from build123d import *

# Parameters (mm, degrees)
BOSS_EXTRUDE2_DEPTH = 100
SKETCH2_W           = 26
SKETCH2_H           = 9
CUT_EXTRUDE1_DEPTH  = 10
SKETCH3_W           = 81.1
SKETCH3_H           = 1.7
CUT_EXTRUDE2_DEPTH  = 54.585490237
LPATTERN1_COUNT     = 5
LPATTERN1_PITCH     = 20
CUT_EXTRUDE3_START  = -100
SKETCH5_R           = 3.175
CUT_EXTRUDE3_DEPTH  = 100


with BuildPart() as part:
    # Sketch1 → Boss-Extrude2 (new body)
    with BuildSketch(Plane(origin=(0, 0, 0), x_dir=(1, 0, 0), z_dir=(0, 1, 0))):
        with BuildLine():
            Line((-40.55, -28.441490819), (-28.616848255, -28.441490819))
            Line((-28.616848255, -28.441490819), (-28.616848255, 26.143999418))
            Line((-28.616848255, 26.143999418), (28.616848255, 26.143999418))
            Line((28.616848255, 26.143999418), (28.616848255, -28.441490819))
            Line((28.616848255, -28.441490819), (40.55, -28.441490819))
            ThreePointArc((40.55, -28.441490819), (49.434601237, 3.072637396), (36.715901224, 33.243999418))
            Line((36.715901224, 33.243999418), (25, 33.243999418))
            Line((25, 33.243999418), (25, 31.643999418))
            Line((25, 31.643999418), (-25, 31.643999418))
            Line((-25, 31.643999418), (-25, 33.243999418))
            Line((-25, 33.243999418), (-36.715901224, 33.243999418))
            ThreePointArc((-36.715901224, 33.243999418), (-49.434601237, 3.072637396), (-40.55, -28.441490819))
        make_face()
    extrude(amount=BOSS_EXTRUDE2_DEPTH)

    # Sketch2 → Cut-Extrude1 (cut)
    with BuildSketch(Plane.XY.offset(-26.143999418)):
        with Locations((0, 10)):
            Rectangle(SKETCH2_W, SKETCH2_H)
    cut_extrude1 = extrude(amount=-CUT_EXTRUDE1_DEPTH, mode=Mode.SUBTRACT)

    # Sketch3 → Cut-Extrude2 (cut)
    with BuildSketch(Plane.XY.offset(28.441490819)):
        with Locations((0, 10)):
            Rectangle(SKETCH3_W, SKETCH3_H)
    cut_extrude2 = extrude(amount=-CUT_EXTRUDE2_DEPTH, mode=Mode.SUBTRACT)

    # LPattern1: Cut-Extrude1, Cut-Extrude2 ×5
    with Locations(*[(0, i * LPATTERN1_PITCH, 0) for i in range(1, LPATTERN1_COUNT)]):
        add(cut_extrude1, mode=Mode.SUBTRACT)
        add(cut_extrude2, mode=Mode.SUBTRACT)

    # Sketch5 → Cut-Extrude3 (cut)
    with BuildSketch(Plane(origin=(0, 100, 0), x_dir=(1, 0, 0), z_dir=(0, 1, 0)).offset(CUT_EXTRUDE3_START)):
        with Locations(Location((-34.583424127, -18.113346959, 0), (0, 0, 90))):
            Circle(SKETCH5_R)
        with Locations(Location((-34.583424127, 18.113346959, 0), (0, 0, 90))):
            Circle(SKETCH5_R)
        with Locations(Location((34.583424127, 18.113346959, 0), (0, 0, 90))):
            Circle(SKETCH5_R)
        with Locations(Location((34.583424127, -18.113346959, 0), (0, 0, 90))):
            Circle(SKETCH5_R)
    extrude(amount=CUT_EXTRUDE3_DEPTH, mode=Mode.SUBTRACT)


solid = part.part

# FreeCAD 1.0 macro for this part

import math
import FreeCAD as App
import Part
import Sketcher
Q = App.Units.Quantity

doc = App.newDocument("Part")
params = doc.addObject("Spreadsheet::Sheet", "Params")
for row, (alias, value) in enumerate([
    ("sketch1_width", "50 mm"),
    ("sketch1_radius", "49.53 mm"),
    ("sketch1_height", "1.6 mm"),
    ("pad1_length", "100 mm"),
    ("sketch2_width", "26 mm"),
    ("sketch2_height", "9 mm"),
    ("pocket1_length", "10 mm"),
    ("sketch3_width", "81.1 mm"),
    ("sketch3_height", "1.7 mm"),
    ("pocket2_length", "54.58549 mm"),
    ("linearpattern_pitch", "20 mm"),
    ("sketch4_diameter", "6.35 mm"),
    ("pocket3_length", "100 mm"),
], start=1):
    params.set(f"A{row}", alias)
    params.set(f"B{row}", "=" + value)
    params.setAlias(f"B{row}", alias)

body = doc.addObject("PartDesign::Body", "Body")

# Sketch on XZ plane
sketch1 = doc.addObject("Sketcher::SketchObject", "Sketch")
body.addObject(sketch1)
sketch1.AttachmentSupport = (doc.XZ_Plane, [""])
sketch1.MapMode = "FlatFace"
sketch1.addGeometry([
    Part.LineSegment(App.Vector(-40.55, 28.441491, 0), App.Vector(-28.616848, 28.441491, 0)),  # 0
    Part.LineSegment(App.Vector(-28.616848, 28.441491, 0), App.Vector(-28.616848, -26.143999, 0)),  # 1
    Part.LineSegment(App.Vector(-28.616848, -26.143999, 0), App.Vector(28.616848, -26.143999, 0)),  # 2
    Part.LineSegment(App.Vector(28.616848, -26.143999, 0), App.Vector(28.616848, 28.441491, 0)),  # 3
    Part.LineSegment(App.Vector(28.616848, 28.441491, 0), App.Vector(40.55, 28.441491, 0)),  # 4
    Part.ArcOfCircle(Part.Circle(App.Vector(0, 0, 0), App.Vector(0, 0, 1), 49.53), math.radians(-42.158912), math.radians(35.045555)),  # 5
    Part.LineSegment(App.Vector(36.715901, -33.243999, 0), App.Vector(25, -33.243999, 0)),  # 6
    Part.LineSegment(App.Vector(25, -33.243999, 0), App.Vector(25, -31.643999, 0)),  # 7
    Part.LineSegment(App.Vector(25, -31.643999, 0), App.Vector(-25, -31.643999, 0)),  # 8
    Part.LineSegment(App.Vector(-25, -31.643999, 0), App.Vector(-25, -33.243999, 0)),  # 9
    Part.LineSegment(App.Vector(-25, -33.243999, 0), App.Vector(-36.715901, -33.243999, 0)),  # 10
    Part.ArcOfCircle(Part.Circle(App.Vector(0, 0, 0), App.Vector(0, 0, 1), 49.53), math.radians(144.954445), math.radians(222.158912)),  # 11
], False)
sketch1.addConstraint([
    Sketcher.Constraint("Coincident", 0, 2, 1, 1),
    Sketcher.Constraint("Coincident", 1, 2, 2, 1),
    Sketcher.Constraint("Coincident", 2, 2, 3, 1),
    Sketcher.Constraint("Coincident", 3, 2, 4, 1),
    Sketcher.Constraint("Coincident", 4, 2, 5, 2),
    Sketcher.Constraint("Coincident", 5, 1, 6, 1),
    Sketcher.Constraint("Coincident", 6, 2, 7, 1),
    Sketcher.Constraint("Coincident", 7, 2, 8, 1),
    Sketcher.Constraint("Coincident", 8, 2, 9, 1),
    Sketcher.Constraint("Coincident", 9, 2, 10, 1),
    Sketcher.Constraint("Coincident", 10, 2, 11, 2),
    Sketcher.Constraint("Coincident", 11, 1, 0, 1),
    Sketcher.Constraint("Horizontal", 0),
    Sketcher.Constraint("Vertical", 1),
    Sketcher.Constraint("Horizontal", 2),
    Sketcher.Constraint("Vertical", 3),
    Sketcher.Constraint("Horizontal", 4),
    Sketcher.Constraint("Horizontal", 6),
    Sketcher.Constraint("Vertical", 7),
    Sketcher.Constraint("Horizontal", 8),
    Sketcher.Constraint("Vertical", 9),
    Sketcher.Constraint("Horizontal", 10),
    Sketcher.Constraint("Coincident", 5, 3, -1, 1),
    Sketcher.Constraint("Coincident", 11, 3, -1, 1),
    Sketcher.Constraint("Equal", 5, 11),
    Sketcher.Constraint("Symmetric", 0, 2, 3, 2, -2),
    Sketcher.Constraint("Symmetric", 6, 2, 9, 2, -2),
    Sketcher.Constraint("DistanceX", 8, 2, 8, 1, Q("50 mm")),
    Sketcher.Constraint("Radius", 5, Q("49.53 mm")),
    Sketcher.Constraint("DistanceY", 7, 1, 7, 2, Q("1.6 mm")),
    Sketcher.Constraint("DistanceY", 5, 1, 2, 2, Q("7.1 mm")),
    Sketcher.Constraint("DistanceX", -1, 1, 4, 2, Q("40.55 mm")),
    Sketcher.Constraint("DistanceX", 6, 2, 6, 1, Q("11.715901 mm")),
    Sketcher.Constraint("DistanceX", 0, 1, 0, 2, Q("11.933152 mm")),
])
sketch1.setExpression("Constraints[27]", "Params.sketch1_width")
sketch1.setExpression("Constraints[28]", "Params.sketch1_radius")
sketch1.setExpression("Constraints[29]", "Params.sketch1_height")
pad1 = doc.addObject("PartDesign::Pad", "Pad")
body.addObject(pad1)
pad1.Profile = sketch1
pad1.setExpression("Length", "Params.pad1_length")
pad1.Reversed = True

# Sketch on XY plane
sketch2 = doc.addObject("Sketcher::SketchObject", "Sketch001")
body.addObject(sketch2)
sketch2.AttachmentSupport = (doc.XY_Plane, [""])
sketch2.MapMode = "FlatFace"
sketch2.AttachmentOffset = App.Placement(App.Vector(0, 0, -26.143999), App.Rotation())
sketch2.addGeometry([
    Part.LineSegment(App.Vector(-13, 14.5, 0), App.Vector(-13, 5.5, 0)),
    Part.LineSegment(App.Vector(-13, 5.5, 0), App.Vector(13, 5.5, 0)),
    Part.LineSegment(App.Vector(13, 5.5, 0), App.Vector(13, 14.5, 0)),
    Part.LineSegment(App.Vector(13, 14.5, 0), App.Vector(-13, 14.5, 0)),
], False)
sketch2.addConstraint([
    Sketcher.Constraint("Coincident", 0, 2, 1, 1),
    Sketcher.Constraint("Coincident", 1, 2, 2, 1),
    Sketcher.Constraint("Coincident", 2, 2, 3, 1),
    Sketcher.Constraint("Coincident", 3, 2, 0, 1),
    Sketcher.Constraint("Vertical", 0),
    Sketcher.Constraint("Horizontal", 1),
    Sketcher.Constraint("Vertical", 2),
    Sketcher.Constraint("Horizontal", 3),
    Sketcher.Constraint("DistanceX", 1, 1, 1, 2, Q("26 mm")),
    Sketcher.Constraint("DistanceY", 0, 2, 0, 1, Q("9 mm")),
    Sketcher.Constraint("DistanceX", 0, 2, -1, 1, Q("13 mm")),
    Sketcher.Constraint("DistanceY", -1, 1, 0, 2, Q("5.5 mm")),
])
sketch2.setExpression("Constraints[8]", "Params.sketch2_width")
sketch2.setExpression("Constraints[9]", "Params.sketch2_height")
pocket1 = doc.addObject("PartDesign::Pocket", "Pocket")
body.addObject(pocket1)
pocket1.Profile = sketch2
pocket1.setExpression("Length", "Params.pocket1_length")

# Sketch on XY plane
sketch3 = doc.addObject("Sketcher::SketchObject", "Sketch002")
body.addObject(sketch3)
sketch3.AttachmentSupport = (doc.XY_Plane, [""])
sketch3.MapMode = "FlatFace"
sketch3.AttachmentOffset = App.Placement(App.Vector(0, 0, 28.441491), App.Rotation())
sketch3.addGeometry([
    Part.LineSegment(App.Vector(-40.55, 10.85, 0), App.Vector(-40.55, 9.15, 0)),
    Part.LineSegment(App.Vector(-40.55, 9.15, 0), App.Vector(40.55, 9.15, 0)),
    Part.LineSegment(App.Vector(40.55, 9.15, 0), App.Vector(40.55, 10.85, 0)),
    Part.LineSegment(App.Vector(40.55, 10.85, 0), App.Vector(-40.55, 10.85, 0)),
], False)
sketch3.addConstraint([
    Sketcher.Constraint("Coincident", 0, 2, 1, 1),
    Sketcher.Constraint("Coincident", 1, 2, 2, 1),
    Sketcher.Constraint("Coincident", 2, 2, 3, 1),
    Sketcher.Constraint("Coincident", 3, 2, 0, 1),
    Sketcher.Constraint("Vertical", 0),
    Sketcher.Constraint("Horizontal", 1),
    Sketcher.Constraint("Vertical", 2),
    Sketcher.Constraint("Horizontal", 3),
    Sketcher.Constraint("DistanceX", 1, 1, 1, 2, Q("81.1 mm")),
    Sketcher.Constraint("DistanceY", 0, 2, 0, 1, Q("1.7 mm")),
    Sketcher.Constraint("DistanceX", 0, 2, -1, 1, Q("40.55 mm")),
    Sketcher.Constraint("DistanceY", -1, 1, 0, 2, Q("9.15 mm")),
])
sketch3.setExpression("Constraints[8]", "Params.sketch3_width")
sketch3.setExpression("Constraints[9]", "Params.sketch3_height")
pocket2 = doc.addObject("PartDesign::Pocket", "Pocket001")
body.addObject(pocket2)
pocket2.Profile = sketch3
pocket2.setExpression("Length", "Params.pocket2_length")
doc.recompute()

linearpattern = doc.addObject("PartDesign::LinearPattern", "LinearPattern")
body.addObject(linearpattern)
linearpattern.Originals = [pocket1, pocket2]
linearpattern.Direction = (doc.Y_Axis, [""])
linearpattern.Mode = "offset"
linearpattern.setExpression("Offset", "Params.linearpattern_pitch")
linearpattern.Occurrences = 5
body.Tip = linearpattern

# Sketch on XZ plane
sketch4 = doc.addObject("Sketcher::SketchObject", "Sketch003")
body.addObject(sketch4)
sketch4.AttachmentSupport = (doc.XZ_Plane, [""])
sketch4.MapMode = "FlatFace"
sketch4.addGeometry([
    Part.Circle(App.Vector(-34.583424, 18.113347, 0), App.Vector(0, 0, 1), 3.175),
    Part.Circle(App.Vector(-34.583424, -18.113347, 0), App.Vector(0, 0, 1), 3.175),
    Part.Circle(App.Vector(34.583424, -18.113347, 0), App.Vector(0, 0, 1), 3.175),
    Part.Circle(App.Vector(34.583424, 18.113347, 0), App.Vector(0, 0, 1), 3.175),
], False)
sketch4.addConstraint([
    Sketcher.Constraint("Equal", 0, 1),
    Sketcher.Constraint("Equal", 1, 2),
    Sketcher.Constraint("Equal", 2, 3),
    Sketcher.Constraint("Symmetric", 0, 3, 2, 3, -1, 1),
    Sketcher.Constraint("Symmetric", 1, 3, 3, 3, -1, 1),
    Sketcher.Constraint("Symmetric", 1, 3, 2, 3, -2),
    Sketcher.Constraint("Diameter", 0, Q("6.35 mm")),
    Sketcher.Constraint("DistanceX", 1, 3, 2, 3, Q("69.166848 mm")),
    Sketcher.Constraint("DistanceY", -1, 1, 0, 3, Q("18.113347 mm")),
])
sketch4.setExpression("Constraints[6]", "Params.sketch4_diameter")
pocket3 = doc.addObject("PartDesign::Pocket", "Pocket002")
body.addObject(pocket3)
pocket3.Profile = sketch4
pocket3.setExpression("Length", "Params.pocket3_length")

doc.recompute()
